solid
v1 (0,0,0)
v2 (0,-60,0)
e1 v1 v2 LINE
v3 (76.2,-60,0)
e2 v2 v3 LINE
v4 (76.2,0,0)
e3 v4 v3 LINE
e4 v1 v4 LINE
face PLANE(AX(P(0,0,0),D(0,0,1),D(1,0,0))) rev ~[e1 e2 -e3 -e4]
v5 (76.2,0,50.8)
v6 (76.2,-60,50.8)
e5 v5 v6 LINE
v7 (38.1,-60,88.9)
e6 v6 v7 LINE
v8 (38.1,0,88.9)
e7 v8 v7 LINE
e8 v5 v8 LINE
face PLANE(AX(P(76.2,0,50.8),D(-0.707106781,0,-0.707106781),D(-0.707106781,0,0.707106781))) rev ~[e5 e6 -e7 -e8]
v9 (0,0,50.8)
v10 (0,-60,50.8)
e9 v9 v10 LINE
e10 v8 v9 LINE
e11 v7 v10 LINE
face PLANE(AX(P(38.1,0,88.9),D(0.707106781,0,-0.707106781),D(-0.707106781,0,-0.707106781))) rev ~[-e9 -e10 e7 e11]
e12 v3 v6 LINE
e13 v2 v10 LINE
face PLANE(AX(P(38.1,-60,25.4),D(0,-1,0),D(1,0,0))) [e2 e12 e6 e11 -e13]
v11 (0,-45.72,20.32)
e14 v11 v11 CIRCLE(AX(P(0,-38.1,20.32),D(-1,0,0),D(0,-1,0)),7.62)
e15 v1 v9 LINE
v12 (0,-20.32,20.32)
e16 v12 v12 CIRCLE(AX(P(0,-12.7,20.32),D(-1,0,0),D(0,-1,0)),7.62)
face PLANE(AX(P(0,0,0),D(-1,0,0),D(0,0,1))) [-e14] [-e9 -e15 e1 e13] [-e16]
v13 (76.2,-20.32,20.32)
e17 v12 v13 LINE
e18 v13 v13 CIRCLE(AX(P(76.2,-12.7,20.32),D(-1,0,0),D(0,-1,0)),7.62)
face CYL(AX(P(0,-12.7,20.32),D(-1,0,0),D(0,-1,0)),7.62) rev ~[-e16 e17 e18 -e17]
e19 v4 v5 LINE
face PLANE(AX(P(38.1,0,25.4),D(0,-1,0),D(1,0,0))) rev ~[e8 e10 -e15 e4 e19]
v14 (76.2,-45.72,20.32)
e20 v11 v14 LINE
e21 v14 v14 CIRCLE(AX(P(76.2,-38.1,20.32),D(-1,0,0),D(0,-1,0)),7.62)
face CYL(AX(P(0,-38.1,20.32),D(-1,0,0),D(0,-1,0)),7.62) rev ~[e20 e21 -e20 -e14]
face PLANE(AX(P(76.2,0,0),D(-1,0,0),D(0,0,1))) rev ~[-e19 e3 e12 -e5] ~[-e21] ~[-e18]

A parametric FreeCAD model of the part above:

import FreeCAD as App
import Part
import Sketcher
Q = App.Units.Quantity

doc = App.newDocument("Part")
body = doc.addObject("PartDesign::Body", "Body")

# Sketch on XZ plane
sketch1 = body.newObject("Sketcher::SketchObject", "Sketch")
sketch1.AttachmentSupport = (doc.getObject("XZ_Plane"), [""])
sketch1.MapMode = "FlatFace"
sketch1.addGeometry([
    Part.LineSegment(App.Vector(0, 50.8, 0), App.Vector(0, 0, 0)),  # 0
    Part.LineSegment(App.Vector(0, 0, 0), App.Vector(76.2, 0, 0)),  # 1
    Part.LineSegment(App.Vector(76.2, 0, 0), App.Vector(76.2, 50.8, 0)),  # 2
    Part.LineSegment(App.Vector(76.2, 50.8, 0), App.Vector(38.1, 88.9, 0)),  # 3
    Part.LineSegment(App.Vector(38.1, 88.9, 0), App.Vector(0, 50.8, 0)),  # 4
], False)
sketch1.addConstraint([
    Sketcher.Constraint("Coincident", 0, 2, 1, 1),
    Sketcher.Constraint("Coincident", 1, 2, 2, 1),
    Sketcher.Constraint("Coincident", 2, 2, 3, 1),
    Sketcher.Constraint("Coincident", 3, 2, 4, 1),
    Sketcher.Constraint("Coincident", 4, 2, 0, 1),
    Sketcher.Constraint("Vertical", 0),
    Sketcher.Constraint("Horizontal", 1),
    Sketcher.Constraint("Vertical", 2),
    Sketcher.Constraint("Coincident", 0, 2, -1, 1),
    Sketcher.Constraint("Perpendicular", 3, 4),
    Sketcher.Constraint("Horizontal", 2, 2, 4, 2),
    Sketcher.Constraint("Equal", 3, 4),
    Sketcher.Constraint("DistanceX", 1, 1, 1, 2, Q("3 in")),
    Sketcher.Constraint("DistanceY", 0, 2, 0, 1, Q("2 in")),
])
pad1 = body.newObject("PartDesign::Pad", "Pad")
pad1.Profile = sketch1
pad1.Length = 60

# Sketch on YZ plane
sketch2 = body.newObject("Sketcher::SketchObject", "Sketch001")
sketch2.AttachmentSupport = (doc.getObject("YZ_Plane"), [""])
sketch2.MapMode = "FlatFace"
sketch2.addGeometry(Part.Circle(App.Vector(-12.7, 20.32, 0), App.Vector(0, 0, 1), 7.62), False)
sketch2.addConstraint([
    Sketcher.Constraint("Diameter", 0, Q("0.6 in")),
    Sketcher.Constraint("DistanceX", 0, 3, -1, 1, Q("0.5 in")),
    Sketcher.Constraint("DistanceY", -1, 1, 0, 3, Q("0.8 in")),
])
pocket1 = body.newObject("PartDesign::Pocket", "Pocket")
pocket1.Profile = sketch2
pocket1.Type = "ThroughAll"
pocket1.Reversed = True

# Sketch on YZ plane
sketch3 = body.newObject("Sketcher::SketchObject", "Sketch002")
sketch3.AttachmentSupport = (doc.getObject("YZ_Plane"), [""])
sketch3.MapMode = "FlatFace"
sketch3.addGeometry([
    Part.Circle(App.Vector(-12.7, 20.32, 0), App.Vector(0, 0, 1), 7.62),
    Part.Circle(App.Vector(-38.1, 20.32, 0), App.Vector(0, 0, 1), 7.62),
], False)
sketch3.addConstraint([
    Sketcher.Constraint("Equal", 0, 1),
    Sketcher.Constraint("Horizontal", 0, 3, 1, 3),
    Sketcher.Constraint("Diameter", 0, Q("0.6 in")),
    Sketcher.Constraint("DistanceX", 1, 3, 0, 3, Q("1 in")),
    Sketcher.Constraint("DistanceX", 0, 3, -1, 1, Q("0.5 in")),
    Sketcher.Constraint("DistanceY", -1, 1, 0, 3, Q("0.8 in")),
])
pocket2 = body.newObject("PartDesign::Pocket", "Pocket001")
pocket2.Profile = sketch3
pocket2.Type = "ThroughAll"
pocket2.Reversed = True

doc.recompute()
